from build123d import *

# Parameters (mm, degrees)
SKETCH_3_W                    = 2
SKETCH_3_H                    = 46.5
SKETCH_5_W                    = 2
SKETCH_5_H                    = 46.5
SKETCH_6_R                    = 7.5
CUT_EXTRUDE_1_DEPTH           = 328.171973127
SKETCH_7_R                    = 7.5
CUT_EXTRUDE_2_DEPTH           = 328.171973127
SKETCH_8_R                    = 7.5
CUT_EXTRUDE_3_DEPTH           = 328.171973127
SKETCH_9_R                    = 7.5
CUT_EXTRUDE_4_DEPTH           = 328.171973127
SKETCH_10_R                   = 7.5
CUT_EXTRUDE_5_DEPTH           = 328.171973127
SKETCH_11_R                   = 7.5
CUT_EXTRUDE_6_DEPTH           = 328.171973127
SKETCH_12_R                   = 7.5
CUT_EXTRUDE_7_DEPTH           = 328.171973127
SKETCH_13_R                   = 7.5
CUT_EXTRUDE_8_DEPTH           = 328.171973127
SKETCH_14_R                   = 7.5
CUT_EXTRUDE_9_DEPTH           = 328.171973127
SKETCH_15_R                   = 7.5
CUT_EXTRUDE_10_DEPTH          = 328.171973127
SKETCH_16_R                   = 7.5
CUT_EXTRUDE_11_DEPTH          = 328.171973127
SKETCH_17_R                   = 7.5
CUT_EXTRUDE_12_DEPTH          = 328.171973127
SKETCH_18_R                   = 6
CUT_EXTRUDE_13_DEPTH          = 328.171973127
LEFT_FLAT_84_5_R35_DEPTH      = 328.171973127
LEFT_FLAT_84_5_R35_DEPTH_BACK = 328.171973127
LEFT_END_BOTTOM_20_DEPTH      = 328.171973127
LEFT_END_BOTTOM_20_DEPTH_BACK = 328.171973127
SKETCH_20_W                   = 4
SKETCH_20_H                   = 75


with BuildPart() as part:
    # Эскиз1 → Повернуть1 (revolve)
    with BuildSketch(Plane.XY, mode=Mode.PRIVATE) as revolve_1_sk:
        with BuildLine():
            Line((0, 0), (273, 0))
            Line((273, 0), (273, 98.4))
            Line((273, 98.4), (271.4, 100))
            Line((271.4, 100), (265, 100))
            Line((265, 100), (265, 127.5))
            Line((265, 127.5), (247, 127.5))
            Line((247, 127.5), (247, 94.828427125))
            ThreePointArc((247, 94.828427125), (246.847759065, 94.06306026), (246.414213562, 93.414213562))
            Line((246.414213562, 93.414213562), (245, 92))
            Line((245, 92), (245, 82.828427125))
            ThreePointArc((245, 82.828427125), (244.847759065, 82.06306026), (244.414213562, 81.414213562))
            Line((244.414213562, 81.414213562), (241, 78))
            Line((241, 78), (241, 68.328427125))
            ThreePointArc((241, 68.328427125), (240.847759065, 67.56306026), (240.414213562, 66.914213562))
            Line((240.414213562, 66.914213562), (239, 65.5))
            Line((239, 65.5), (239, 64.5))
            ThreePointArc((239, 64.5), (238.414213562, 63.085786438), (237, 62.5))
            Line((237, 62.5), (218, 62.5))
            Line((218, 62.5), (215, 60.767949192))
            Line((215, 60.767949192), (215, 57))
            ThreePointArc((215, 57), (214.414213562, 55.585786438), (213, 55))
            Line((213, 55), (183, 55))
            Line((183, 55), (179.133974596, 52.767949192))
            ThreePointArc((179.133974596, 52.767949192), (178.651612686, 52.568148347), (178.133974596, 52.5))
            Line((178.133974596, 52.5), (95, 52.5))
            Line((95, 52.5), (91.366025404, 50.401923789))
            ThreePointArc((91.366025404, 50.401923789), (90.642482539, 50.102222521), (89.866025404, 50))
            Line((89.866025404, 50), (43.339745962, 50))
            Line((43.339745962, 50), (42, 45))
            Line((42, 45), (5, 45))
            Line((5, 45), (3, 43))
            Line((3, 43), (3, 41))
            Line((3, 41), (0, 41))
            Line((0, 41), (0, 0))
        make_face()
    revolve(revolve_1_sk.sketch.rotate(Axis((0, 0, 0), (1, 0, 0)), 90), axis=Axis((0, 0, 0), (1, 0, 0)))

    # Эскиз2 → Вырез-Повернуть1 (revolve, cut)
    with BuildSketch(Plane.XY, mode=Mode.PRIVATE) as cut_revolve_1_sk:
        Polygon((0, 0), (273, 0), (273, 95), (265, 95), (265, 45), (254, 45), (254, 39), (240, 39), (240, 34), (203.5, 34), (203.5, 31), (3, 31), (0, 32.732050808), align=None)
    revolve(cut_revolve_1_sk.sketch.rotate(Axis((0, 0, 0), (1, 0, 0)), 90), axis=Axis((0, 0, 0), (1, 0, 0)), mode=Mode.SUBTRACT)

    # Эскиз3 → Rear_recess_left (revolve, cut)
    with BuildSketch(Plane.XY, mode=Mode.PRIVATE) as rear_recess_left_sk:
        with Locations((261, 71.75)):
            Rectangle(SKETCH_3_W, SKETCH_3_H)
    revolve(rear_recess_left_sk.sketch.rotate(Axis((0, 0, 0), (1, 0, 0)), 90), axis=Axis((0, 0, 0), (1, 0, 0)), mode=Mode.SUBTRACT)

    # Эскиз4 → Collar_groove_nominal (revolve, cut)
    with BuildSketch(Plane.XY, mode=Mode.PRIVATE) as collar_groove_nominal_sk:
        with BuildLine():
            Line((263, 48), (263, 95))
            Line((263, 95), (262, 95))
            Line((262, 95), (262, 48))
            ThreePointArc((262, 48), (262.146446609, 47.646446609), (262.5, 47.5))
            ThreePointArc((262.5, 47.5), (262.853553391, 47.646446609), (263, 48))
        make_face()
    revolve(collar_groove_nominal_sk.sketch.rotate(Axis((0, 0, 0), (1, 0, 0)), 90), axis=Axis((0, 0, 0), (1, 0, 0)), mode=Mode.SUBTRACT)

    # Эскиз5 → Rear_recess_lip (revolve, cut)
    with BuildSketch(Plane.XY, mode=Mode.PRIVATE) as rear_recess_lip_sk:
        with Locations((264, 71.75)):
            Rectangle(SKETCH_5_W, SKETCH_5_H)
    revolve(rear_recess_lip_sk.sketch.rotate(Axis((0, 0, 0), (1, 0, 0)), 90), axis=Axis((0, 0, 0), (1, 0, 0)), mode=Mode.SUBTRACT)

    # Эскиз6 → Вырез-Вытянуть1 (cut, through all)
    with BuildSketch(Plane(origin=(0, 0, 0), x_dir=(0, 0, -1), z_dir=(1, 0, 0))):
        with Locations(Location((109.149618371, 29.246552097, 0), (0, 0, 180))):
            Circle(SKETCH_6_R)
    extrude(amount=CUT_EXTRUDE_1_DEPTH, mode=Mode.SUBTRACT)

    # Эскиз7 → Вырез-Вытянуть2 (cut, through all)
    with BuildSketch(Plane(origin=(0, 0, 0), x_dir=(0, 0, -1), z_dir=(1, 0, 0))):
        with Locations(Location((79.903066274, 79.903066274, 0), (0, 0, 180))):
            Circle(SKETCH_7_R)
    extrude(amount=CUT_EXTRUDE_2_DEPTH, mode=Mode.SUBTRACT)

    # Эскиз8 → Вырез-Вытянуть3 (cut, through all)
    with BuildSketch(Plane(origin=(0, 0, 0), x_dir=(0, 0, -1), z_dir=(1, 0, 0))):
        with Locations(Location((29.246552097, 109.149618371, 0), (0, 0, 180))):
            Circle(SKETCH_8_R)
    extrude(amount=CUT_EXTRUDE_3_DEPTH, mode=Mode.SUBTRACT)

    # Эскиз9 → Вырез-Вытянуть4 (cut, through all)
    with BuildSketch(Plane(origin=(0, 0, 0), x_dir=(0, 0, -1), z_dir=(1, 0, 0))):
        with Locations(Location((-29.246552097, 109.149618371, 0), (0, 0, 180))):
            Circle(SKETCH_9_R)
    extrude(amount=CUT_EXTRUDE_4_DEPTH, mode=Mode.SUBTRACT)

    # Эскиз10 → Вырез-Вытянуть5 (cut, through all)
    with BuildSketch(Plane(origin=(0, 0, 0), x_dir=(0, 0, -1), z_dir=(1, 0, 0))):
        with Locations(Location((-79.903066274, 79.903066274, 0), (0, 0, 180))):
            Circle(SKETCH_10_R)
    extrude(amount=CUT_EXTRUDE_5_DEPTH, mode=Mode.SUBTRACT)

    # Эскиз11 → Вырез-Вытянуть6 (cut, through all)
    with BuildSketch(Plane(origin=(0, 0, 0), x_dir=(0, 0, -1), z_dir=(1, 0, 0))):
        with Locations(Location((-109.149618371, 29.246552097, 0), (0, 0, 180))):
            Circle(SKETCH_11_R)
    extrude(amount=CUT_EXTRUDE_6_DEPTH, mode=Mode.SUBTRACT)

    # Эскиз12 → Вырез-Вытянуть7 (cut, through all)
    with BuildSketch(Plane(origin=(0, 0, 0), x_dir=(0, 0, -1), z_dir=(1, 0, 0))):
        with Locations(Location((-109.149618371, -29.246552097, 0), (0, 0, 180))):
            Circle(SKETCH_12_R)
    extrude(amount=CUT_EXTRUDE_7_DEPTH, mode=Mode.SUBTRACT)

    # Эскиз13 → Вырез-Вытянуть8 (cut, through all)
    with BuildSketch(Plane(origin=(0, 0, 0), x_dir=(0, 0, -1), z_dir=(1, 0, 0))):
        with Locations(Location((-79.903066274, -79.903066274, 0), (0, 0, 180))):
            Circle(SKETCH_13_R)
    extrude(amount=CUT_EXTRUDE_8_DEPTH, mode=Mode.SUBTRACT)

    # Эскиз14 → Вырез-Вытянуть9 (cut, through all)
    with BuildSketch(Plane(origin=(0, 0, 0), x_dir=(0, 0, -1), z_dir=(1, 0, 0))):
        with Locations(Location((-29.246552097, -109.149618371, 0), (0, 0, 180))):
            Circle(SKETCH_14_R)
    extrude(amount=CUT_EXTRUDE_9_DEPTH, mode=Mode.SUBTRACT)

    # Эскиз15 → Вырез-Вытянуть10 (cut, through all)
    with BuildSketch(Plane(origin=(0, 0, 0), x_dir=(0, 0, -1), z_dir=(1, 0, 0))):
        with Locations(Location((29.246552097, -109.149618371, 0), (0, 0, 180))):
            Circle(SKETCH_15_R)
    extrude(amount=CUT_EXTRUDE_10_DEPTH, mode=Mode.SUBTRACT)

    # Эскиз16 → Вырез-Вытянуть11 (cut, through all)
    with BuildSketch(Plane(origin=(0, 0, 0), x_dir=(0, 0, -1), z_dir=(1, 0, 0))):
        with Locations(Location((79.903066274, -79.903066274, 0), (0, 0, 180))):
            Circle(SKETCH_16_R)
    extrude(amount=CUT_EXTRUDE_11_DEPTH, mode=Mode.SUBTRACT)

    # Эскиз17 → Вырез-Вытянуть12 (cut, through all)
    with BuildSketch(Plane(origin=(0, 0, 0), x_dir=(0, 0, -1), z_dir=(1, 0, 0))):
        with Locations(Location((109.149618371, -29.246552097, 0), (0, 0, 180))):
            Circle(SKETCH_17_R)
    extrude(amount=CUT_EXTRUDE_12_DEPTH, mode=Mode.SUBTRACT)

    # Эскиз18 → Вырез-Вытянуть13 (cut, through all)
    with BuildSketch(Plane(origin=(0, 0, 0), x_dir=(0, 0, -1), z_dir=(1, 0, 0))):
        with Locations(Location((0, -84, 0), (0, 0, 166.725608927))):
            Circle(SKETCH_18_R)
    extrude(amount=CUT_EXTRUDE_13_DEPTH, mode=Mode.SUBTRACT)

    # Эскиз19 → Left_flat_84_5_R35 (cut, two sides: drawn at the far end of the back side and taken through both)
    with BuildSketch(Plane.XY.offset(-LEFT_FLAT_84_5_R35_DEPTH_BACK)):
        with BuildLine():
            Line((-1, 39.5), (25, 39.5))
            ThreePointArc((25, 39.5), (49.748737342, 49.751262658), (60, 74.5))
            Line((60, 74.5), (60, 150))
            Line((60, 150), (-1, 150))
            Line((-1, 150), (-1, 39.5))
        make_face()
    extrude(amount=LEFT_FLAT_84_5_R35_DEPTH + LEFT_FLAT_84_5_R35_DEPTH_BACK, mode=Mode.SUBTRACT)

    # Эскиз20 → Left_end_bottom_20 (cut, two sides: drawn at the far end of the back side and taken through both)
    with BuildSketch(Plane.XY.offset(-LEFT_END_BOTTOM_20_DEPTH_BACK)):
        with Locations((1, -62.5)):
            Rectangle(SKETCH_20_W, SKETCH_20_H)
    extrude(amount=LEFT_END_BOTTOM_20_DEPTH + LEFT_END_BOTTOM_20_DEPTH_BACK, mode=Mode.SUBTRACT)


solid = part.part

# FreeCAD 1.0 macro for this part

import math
import FreeCAD as App
import Part
import Sketcher

V = App.Vector
Q = App.Units.Quantity


def add_polygon(sketch, points):
    """Adds a closed chain of lines whose ends are joined by coincident constraints."""
    first, n = sketch.GeometryCount, len(points)
    for a, b in zip(points, points[1:] + points[:1]):
        sketch.addGeometry(Part.LineSegment(App.Vector(*a, 0), App.Vector(*b, 0)), False)
    for i in range(n):
        sketch.addConstraint(Sketcher.Constraint("Coincident", first + i, 2, first + (i + 1) % n, 1))

doc = App.newDocument("Part")
body = doc.addObject("PartDesign::Body", "Body")

# Sketch on XY plane
sketch1 = body.newObject("Sketcher::SketchObject", "Sketch")
sketch1.AttachmentSupport = (doc.getObject("XY_Plane"), [""])
sketch1.MapMode = "FlatFace"
sketch1.addGeometry([
    Part.LineSegment(V(0, 0, 0), V(273, 0, 0)),  # 0
    Part.LineSegment(V(273, 0, 0), V(273, 98.4, 0)),  # 1
    Part.LineSegment(V(273, 98.4, 0), V(271.4, 100, 0)),  # 2
    Part.LineSegment(V(271.4, 100, 0), V(265, 100, 0)),  # 3
    Part.LineSegment(V(265, 100, 0), V(265, 127.5, 0)),  # 4
    Part.LineSegment(V(265, 127.5, 0), V(247, 127.5, 0)),  # 5
    Part.LineSegment(V(247, 127.5, 0), V(247, 94.8, 0)),  # 6
    Part.ArcOfCircle(Part.Circle(V(245, 94.8, 0), V(0, 0, 1), 2), math.radians(-45), math.radians(0)),  # 7
    Part.LineSegment(V(246.4, 93.4, 0), V(245, 92, 0)),  # 8
    Part.LineSegment(V(245, 92, 0), V(245, 82.8, 0)),  # 9
    Part.ArcOfCircle(Part.Circle(V(243, 82.8, 0), V(0, 0, 1), 2), math.radians(-45), math.radians(0)),  # 10
    Part.LineSegment(V(244.4, 81.4, 0), V(241, 78, 0)),  # 11
    Part.LineSegment(V(241, 78, 0), V(241, 68.3, 0)),  # 12
    Part.ArcOfCircle(Part.Circle(V(239, 68.3, 0), V(0, 0, 1), 2), math.radians(-45), math.radians(0)),  # 13
    Part.LineSegment(V(240.4, 66.9, 0), V(239, 65.5, 0)),  # 14
    Part.LineSegment(V(239, 65.5, 0), V(239, 64.5, 0)),  # 15
    Part.ArcOfCircle(Part.Circle(V(237, 64.5, 0), V(0, 0, 1), 2), math.radians(-90), math.radians(0)),  # 16
    Part.LineSegment(V(237, 62.5, 0), V(218, 62.5, 0)),  # 17
    Part.LineSegment(V(218, 62.5, 0), V(215, 60.8, 0)),  # 18
    Part.LineSegment(V(215, 60.8, 0), V(215, 57, 0)),  # 19
    Part.ArcOfCircle(Part.Circle(V(213, 57, 0), V(0, 0, 1), 2), math.radians(-90), math.radians(0)),  # 20
    Part.LineSegment(V(213, 55, 0), V(183, 55, 0)),  # 21
    Part.LineSegment(V(183, 55, 0), V(179.1, 52.8, 0)),  # 22
    Part.ArcOfCircle(Part.Circle(V(178.1, 54.5, 0), V(0, 0, 1), 2), math.radians(-90), math.radians(-60)),  # 23
    Part.LineSegment(V(178.1, 52.5, 0), V(95, 52.5, 0)),  # 24
    Part.LineSegment(V(95, 52.5, 0), V(91.4, 50.4, 0)),  # 25
    Part.ArcOfCircle(Part.Circle(V(89.9, 53, 0), V(0, 0, 1), 3), math.radians(-90), math.radians(-60)),  # 26
    Part.LineSegment(V(89.9, 50, 0), V(43.3, 50, 0)),  # 27
    Part.LineSegment(V(43.3, 50, 0), V(42, 45, 0)),  # 28
    Part.LineSegment(V(42, 45, 0), V(5, 45, 0)),  # 29
    Part.LineSegment(V(5, 45, 0), V(3, 43, 0)),  # 30
    Part.LineSegment(V(3, 43, 0), V(3, 41, 0)),  # 31
    Part.LineSegment(V(3, 41, 0), V(0, 41, 0)),  # 32
    Part.LineSegment(V(0, 41, 0), V(0, 0, 0)),  # 33
], False)
sketch1.addConstraint([
    Sketcher.Constraint("Coincident", 0, 2, 1, 1),
    Sketcher.Constraint("Coincident", 1, 2, 2, 1),
    Sketcher.Constraint("Coincident", 2, 2, 3, 1),
    Sketcher.Constraint("Coincident", 3, 2, 4, 1),
    Sketcher.Constraint("Coincident", 4, 2, 5, 1),
    Sketcher.Constraint("Coincident", 5, 2, 6, 1),
    Sketcher.Constraint("Tangent", 6, 2, 7, 2),
    Sketcher.Constraint("Tangent", 7, 1, 8, 1),
    Sketcher.Constraint("Coincident", 8, 2, 9, 1),
    Sketcher.Constraint("Tangent", 9, 2, 10, 2),
    Sketcher.Constraint("Tangent", 10, 1, 11, 1),
    Sketcher.Constraint("Coincident", 11, 2, 12, 1),
    Sketcher.Constraint("Tangent", 12, 2, 13, 2),
    Sketcher.Constraint("Tangent", 13, 1, 14, 1),
    Sketcher.Constraint("Coincident", 14, 2, 15, 1),
    Sketcher.Constraint("Tangent", 15, 2, 16, 2),
    Sketcher.Constraint("Tangent", 16, 1, 17, 1),
    Sketcher.Constraint("Coincident", 17, 2, 18, 1),
    Sketcher.Constraint("Coincident", 18, 2, 19, 1),
    Sketcher.Constraint("Tangent", 19, 2, 20, 2),
    Sketcher.Constraint("Tangent", 20, 1, 21, 1),
    Sketcher.Constraint("Coincident", 21, 2, 22, 1),
    Sketcher.Constraint("Tangent", 22, 2, 23, 2),
    Sketcher.Constraint("Tangent", 23, 1, 24, 1),
    Sketcher.Constraint("Coincident", 24, 2, 25, 1),
    Sketcher.Constraint("Tangent", 25, 2, 26, 2),
    Sketcher.Constraint("Tangent", 26, 1, 27, 1),
    Sketcher.Constraint("Coincident", 27, 2, 28, 1),
    Sketcher.Constraint("Coincident", 28, 2, 29, 1),
    Sketcher.Constraint("Coincident", 29, 2, 30, 1),
    Sketcher.Constraint("Coincident", 30, 2, 31, 1),
    Sketcher.Constraint("Coincident", 31, 2, 32, 1),
    Sketcher.Constraint("Coincident", 32, 2, 33, 1),
    Sketcher.Constraint("Coincident", 33, 2, 0, 1),
    Sketcher.Constraint("Horizontal", 0),
    Sketcher.Constraint("Vertical", 1),
    Sketcher.Constraint("Horizontal", 3),
    Sketcher.Constraint("Vertical", 4),
    Sketcher.Constraint("Horizontal", 5),
    Sketcher.Constraint("Vertical", 6),
    Sketcher.Constraint("Vertical", 9),
    Sketcher.Constraint("Vertical", 12),
    Sketcher.Constraint("Vertical", 15),
    Sketcher.Constraint("Horizontal", 17),
    Sketcher.Constraint("Vertical", 19),
    Sketcher.Constraint("Horizontal", 21),
    Sketcher.Constraint("Horizontal", 24),
    Sketcher.Constraint("Horizontal", 27),
    Sketcher.Constraint("Horizontal", 29),
    Sketcher.Constraint("Vertical", 31),
    Sketcher.Constraint("Horizontal", 32),
    Sketcher.Constraint("Vertical", 33),
    Sketcher.Constraint("Coincident", 33, 2, -1, 1),
    Sketcher.Constraint("Equal", 7, 10),
    Sketcher.Constraint("Equal", 10, 13),
    Sketcher.Constraint("Equal", 13, 16),
    Sketcher.Constraint("Equal", 16, 20),
    Sketcher.Constraint("Equal", 20, 23),
    Sketcher.Constraint("Perpendicular", 2, 8),
    Sketcher.Constraint("Parallel", 8, 11),
    Sketcher.Constraint("Parallel", 11, 14),
    Sketcher.Constraint("Parallel", 18, 22),
    Sketcher.Constraint("Parallel", 22, 25),
    Sketcher.Constraint("Parallel", 14, 30),
    Sketcher.Constraint("Vertical", 7, 3, 8, 2),
    Sketcher.Constraint("Vertical", 13, 3, 14, 2),
    Sketcher.Constraint("Radius", 7, Q("2 mm")),
    Sketcher.Constraint("Radius", 26, Q("3 mm")),
    Sketcher.Constraint("DistanceX", 0, 1, 0, 2, Q("273 mm")),
    Sketcher.Constraint("DistanceX", 5, 2, 5, 1, Q("18 mm")),
    Sketcher.Constraint("DistanceX", 17, 2, 17, 1, Q("19 mm")),
    Sketcher.Constraint("DistanceX", 21, 2, 21, 1, Q("30 mm")),
    Sketcher.Constraint("DistanceX", 29, 2, 29, 1, Q("37 mm")),
    Sketcher.Constraint("DistanceX", 32, 2, 32, 1, Q("3 mm")),
    Sketcher.Constraint("DistanceY", 15, 2, 15, 1, Q("1 mm")),
    Sketcher.Constraint("DistanceY", 31, 2, 31, 1, Q("2 mm")),
    Sketcher.Constraint("DistanceY", 33, 2, 33, 1, Q("41 mm")),
    Sketcher.Constraint("Angle", 2, Q("135 deg")),
    Sketcher.Constraint("Angle", 18, Q("-150 deg")),
    Sketcher.Constraint("Angle", 28, Q("-105 deg")),
    Sketcher.Constraint("DistanceX", 3, 2, 3, 1, Q("6.4 mm")),
    Sketcher.Constraint("DistanceY", 1, 1, 1, 2, Q("98.4 mm")),
    Sketcher.Constraint("DistanceY", 4, 1, 4, 2, Q("27.5 mm")),
    Sketcher.Constraint("DistanceX", -1, 1, 7, 3, Q("245 mm")),
    Sketcher.Constraint("DistanceX", -1, 1, 13, 3, Q("239 mm")),
    Sketcher.Constraint("DistanceX", -1, 1, 20, 3, Q("213 mm")),
    Sketcher.Constraint("DistanceY", -1, 1, 20, 3, Q("57 mm")),
    Sketcher.Constraint("DistanceY", -1, 1, 26, 3, Q("53 mm")),
    Sketcher.Constraint("DistanceY", -1, 1, 8, 2, Q("92 mm")),
    Sketcher.Constraint("DistanceY", -1, 1, 11, 2, Q("78 mm")),
    Sketcher.Constraint("DistanceX", -1, 1, 24, 2, Q("95 mm")),
    Sketcher.Constraint("DistanceX", -1, 1, 28, 2, Q("42 mm")),
    Sketcher.Constraint("DistanceY", 23, 3, 16, 3, Q("10 mm")),
    Sketcher.Constraint("DistanceY", -1, 1, 16, 3, Q("64.5 mm")),
])
revolution = body.newObject("PartDesign::Revolution", "Revolution")
revolution.Profile = sketch1
revolution.ReferenceAxis = (sketch1, ["H_Axis"])
revolution.Angle = 360

# Sketch on XY plane
sketch2 = body.newObject("Sketcher::SketchObject", "Sketch001")
sketch2.AttachmentSupport = (doc.getObject("XY_Plane"), [""])
sketch2.MapMode = "FlatFace"
add_polygon(sketch2, [(0, 0), (273, 0), (273, 95), (265, 95), (265, 45), (254, 45), (254, 39), (240, 39), (240, 34), (203.5, 34), (203.5, 31), (3, 31), (0, 32.7)])  # lines 0-12
sketch2.addConstraint([
    Sketcher.Constraint("Horizontal", 0),
    Sketcher.Constraint("Vertical", 1),
    Sketcher.Constraint("Horizontal", 2),
    Sketcher.Constraint("Vertical", 3),
    Sketcher.Constraint("Horizontal", 4),
    Sketcher.Constraint("Vertical", 5),
    Sketcher.Constraint("Horizontal", 6),
    Sketcher.Constraint("Vertical", 7),
    Sketcher.Constraint("Horizontal", 8),
    Sketcher.Constraint("Vertical", 9),
    Sketcher.Constraint("Horizontal", 10),
    Sketcher.Constraint("Vertical", 12),
    Sketcher.Constraint("Coincident", 12, 2, -1, 1),
    Sketcher.Constraint("DistanceX", 0, 1, 0, 2, Q("273 mm")),
    Sketcher.Constraint("DistanceX", 2, 2, 2, 1, Q("8 mm")),
    Sketcher.Constraint("DistanceX", 4, 2, 4, 1, Q("11 mm")),
    Sketcher.Constraint("DistanceX", 6, 2, 6, 1, Q("14 mm")),
    Sketcher.Constraint("DistanceY", 1, 1, 1, 2, Q("95 mm")),
    Sketcher.Constraint("DistanceY", 3, 2, 3, 1, Q("50 mm")),
    Sketcher.Constraint("DistanceY", 5, 2, 5, 1, Q("6 mm")),
    Sketcher.Constraint("DistanceY", 7, 2, 7, 1, Q("5 mm")),
    Sketcher.Constraint("DistanceY", 9, 2, 9, 1, Q("3 mm")),
    Sketcher.Constraint("Angle", 11, Q("150 deg")),
    Sketcher.Constraint("DistanceX", 8, 2, 8, 1, Q("36.5 mm")),
    Sketcher.Constraint("DistanceX", 10, 2, 10, 1, Q("200.5 mm")),
])
groove = body.newObject("PartDesign::Groove", "Groove")
groove.Profile = sketch2
groove.ReferenceAxis = (sketch2, ["H_Axis"])
groove.Angle = 360

# Sketch on XY plane
sketch3 = body.newObject("Sketcher::SketchObject", "Sketch002")
sketch3.AttachmentSupport = (doc.getObject("XY_Plane"), [""])
sketch3.MapMode = "FlatFace"
add_polygon(sketch3, [(260, 95), (260, 48.5), (262, 48.5), (262, 95)])  # lines 0-3
sketch3.addConstraint([
    Sketcher.Constraint("Vertical", 0),
    Sketcher.Constraint("Horizontal", 1),
    Sketcher.Constraint("Vertical", 2),
    Sketcher.Constraint("Horizontal", 3),
    Sketcher.Constraint("DistanceX", 1, 1, 1, 2, Q("2 mm")),
    Sketcher.Constraint("DistanceY", 0, 2, 0, 1, Q("46.5 mm")),
    Sketcher.Constraint("DistanceX", -1, 1, 0, 2, Q("260 mm")),
    Sketcher.Constraint("DistanceY", -1, 1, 2, 2, Q("95 mm")),
])
groove2 = body.newObject("PartDesign::Groove", "Groove001")
groove2.Profile = sketch3
groove2.ReferenceAxis = (sketch3, ["H_Axis"])
groove2.Angle = 360

# Sketch on XY plane
sketch4 = body.newObject("Sketcher::SketchObject", "Sketch003")
sketch4.AttachmentSupport = (doc.getObject("XY_Plane"), [""])
sketch4.MapMode = "FlatFace"
sketch4.addGeometry([
    Part.LineSegment(V(263, 48, 0), V(263, 95, 0)),  # 0
    Part.LineSegment(V(263, 95, 0), V(262, 95, 0)),  # 1
    Part.LineSegment(V(262, 95, 0), V(262, 48, 0)),  # 2
    Part.ArcOfCircle(Part.Circle(V(262.5, 48, 0), V(0, 0, 1), 0.5), math.radians(180), math.radians(270)),  # 3
    Part.ArcOfCircle(Part.Circle(V(262.5, 48, 0), V(0, 0, 1), 0.5), math.radians(-90), math.radians(0)),  # 4
], False)
sketch4.addConstraint([
    Sketcher.Constraint("Coincident", 0, 2, 1, 1),
    Sketcher.Constraint("Coincident", 1, 2, 2, 1),
    Sketcher.Constraint("Tangent", 2, 2, 3, 1),
    Sketcher.Constraint("Tangent", 3, 2, 4, 1),
    Sketcher.Constraint("Tangent", 4, 2, 0, 1),
    Sketcher.Constraint("Vertical", 0),
    Sketcher.Constraint("Horizontal", 1),
    Sketcher.Constraint("Vertical", 2),
    Sketcher.Constraint("Equal", 3, 4),
    Sketcher.Constraint("Vertical", 4, 3, 3, 2),
    Sketcher.Constraint("Radius", 3, Q("0.5 mm")),
    Sketcher.Constraint("DistanceY", 0, 1, 0, 2, Q("47 mm")),
    Sketcher.Constraint("DistanceY", -1, 1, 3, 3, Q("48 mm")),
    Sketcher.Constraint("DistanceX", -1, 1, 0, 2, Q("263 mm")),
])
groove3 = body.newObject("PartDesign::Groove", "Groove002")
groove3.Profile = sketch4
groove3.ReferenceAxis = (sketch4, ["H_Axis"])
groove3.Angle = 360

# Sketch on XY plane
sketch5 = body.newObject("Sketcher::SketchObject", "Sketch004")
sketch5.AttachmentSupport = (doc.getObject("XY_Plane"), [""])
sketch5.MapMode = "FlatFace"
add_polygon(sketch5, [(263, 95), (263, 48.5), (265, 48.5), (265, 95)])  # lines 0-3
sketch5.addConstraint([
    Sketcher.Constraint("Vertical", 0),
    Sketcher.Constraint("Horizontal", 1),
    Sketcher.Constraint("Vertical", 2),
    Sketcher.Constraint("Horizontal", 3),
    Sketcher.Constraint("DistanceX", 1, 1, 1, 2, Q("2 mm")),
    Sketcher.Constraint("DistanceY", 0, 2, 0, 1, Q("46.5 mm")),
    Sketcher.Constraint("DistanceX", -1, 1, 0, 2, Q("263 mm")),
    Sketcher.Constraint("DistanceY", -1, 1, 2, 2, Q("95 mm")),
])
groove4 = body.newObject("PartDesign::Groove", "Groove003")
groove4.Profile = sketch5
groove4.ReferenceAxis = (sketch5, ["H_Axis"])
groove4.Angle = 360

# Sketch on YZ plane
sketch6 = body.newObject("Sketcher::SketchObject", "Sketch005")
sketch6.AttachmentSupport = (doc.getObject("YZ_Plane"), [""])
sketch6.MapMode = "FlatFace"
sketch6.addGeometry(Part.Circle(V(29, -109, 0), V(0, 0, 1), 8), False)
sketch6.addConstraint([
    Sketcher.Constraint("Diameter", 0, Q("15 mm")),
    Sketcher.Constraint("DistanceY", 0, 3, -1, 1, Q("109.149618 mm")),
    Sketcher.Constraint("DistanceX", -1, 1, 0, 3, Q("29.246552 mm")),
])
pocket1 = body.newObject("PartDesign::Pocket", "Pocket")
pocket1.Profile = sketch6
pocket1.Type = "ThroughAll"
pocket1.Reversed = True

# Sketch on YZ plane
sketch7 = body.newObject("Sketcher::SketchObject", "Sketch006")
sketch7.AttachmentSupport = (doc.getObject("YZ_Plane"), [""])
sketch7.MapMode = "FlatFace"
sketch7.addGeometry(Part.Circle(V(80, -80, 0), V(0, 0, 1), 8), False)
sketch7.addConstraint([
    Sketcher.Constraint("Diameter", 0, Q("15 mm")),
    Sketcher.Constraint("DistanceX", -1, 1, 0, 3, Q("79.903066 mm")),
    Sketcher.Constraint("DistanceY", 0, 3, -1, 1, Q("79.903066 mm")),
])
pocket2 = body.newObject("PartDesign::Pocket", "Pocket001")
pocket2.Profile = sketch7
pocket2.Type = "ThroughAll"
pocket2.Reversed = True

# Sketch on YZ plane
sketch8 = body.newObject("Sketcher::SketchObject", "Sketch007")
sketch8.AttachmentSupport = (doc.getObject("YZ_Plane"), [""])
sketch8.MapMode = "FlatFace"
sketch8.addGeometry(Part.Circle(V(109, -29, 0), V(0, 0, 1), 8), False)
sketch8.addConstraint([
    Sketcher.Constraint("Diameter", 0, Q("15 mm")),
    Sketcher.Constraint("DistanceX", -1, 1, 0, 3, Q("109.149618 mm")),
    Sketcher.Constraint("DistanceY", 0, 3, -1, 1, Q("29.246552 mm")),
])
pocket3 = body.newObject("PartDesign::Pocket", "Pocket002")
pocket3.Profile = sketch8
pocket3.Type = "ThroughAll"
pocket3.Reversed = True

# Sketch on YZ plane
sketch9 = body.newObject("Sketcher::SketchObject", "Sketch008")
sketch9.AttachmentSupport = (doc.getObject("YZ_Plane"), [""])
sketch9.MapMode = "FlatFace"
sketch9.addGeometry(Part.Circle(V(109, 29, 0), V(0, 0, 1), 8), False)
sketch9.addConstraint([
    Sketcher.Constraint("Diameter", 0, Q("15 mm")),
    Sketcher.Constraint("DistanceX", -1, 1, 0, 3, Q("109.149618 mm")),
    Sketcher.Constraint("DistanceY", -1, 1, 0, 3, Q("29.246552 mm")),
])
pocket4 = body.newObject("PartDesign::Pocket", "Pocket003")
pocket4.Profile = sketch9
pocket4.Type = "ThroughAll"
pocket4.Reversed = True

# Sketch on YZ plane
sketch10 = body.newObject("Sketcher::SketchObject", "Sketch009")
sketch10.AttachmentSupport = (doc.getObject("YZ_Plane"), [""])
sketch10.MapMode = "FlatFace"
sketch10.addGeometry(Part.Circle(V(80, 80, 0), V(0, 0, 1), 8), False)
sketch10.addConstraint([
    Sketcher.Constraint("Diameter", 0, Q("15 mm")),
    Sketcher.Constraint("DistanceX", -1, 1, 0, 3, Q("79.903066 mm")),
    Sketcher.Constraint("DistanceY", -1, 1, 0, 3, Q("79.903066 mm")),
])
pocket5 = body.newObject("PartDesign::Pocket", "Pocket004")
pocket5.Profile = sketch10
pocket5.Type = "ThroughAll"
pocket5.Reversed = True

# Sketch on YZ plane
sketch11 = body.newObject("Sketcher::SketchObject", "Sketch010")
sketch11.AttachmentSupport = (doc.getObject("YZ_Plane"), [""])
sketch11.MapMode = "FlatFace"
sketch11.addGeometry(Part.Circle(V(29, 109, 0), V(0, 0, 1), 8), False)
sketch11.addConstraint([
    Sketcher.Constraint("Diameter", 0, Q("15 mm")),
    Sketcher.Constraint("DistanceY", -1, 1, 0, 3, Q("109.149618 mm")),
    Sketcher.Constraint("DistanceX", -1, 1, 0, 3, Q("29.246552 mm")),
])
pocket6 = body.newObject("PartDesign::Pocket", "Pocket005")
pocket6.Profile = sketch11
pocket6.Type = "ThroughAll"
pocket6.Reversed = True

# Sketch on YZ plane
sketch12 = body.newObject("Sketcher::SketchObject", "Sketch011")
sketch12.AttachmentSupport = (doc.getObject("YZ_Plane"), [""])
sketch12.MapMode = "FlatFace"
sketch12.addGeometry(Part.Circle(V(-29, 109, 0), V(0, 0, 1), 8), False)
sketch12.addConstraint([
    Sketcher.Constraint("Diameter", 0, Q("15 mm")),
    Sketcher.Constraint("DistanceY", -1, 1, 0, 3, Q("109.149618 mm")),
    Sketcher.Constraint("DistanceX", 0, 3, -1, 1, Q("29.246552 mm")),
])
pocket7 = body.newObject("PartDesign::Pocket", "Pocket006")
pocket7.Profile = sketch12
pocket7.Type = "ThroughAll"
pocket7.Reversed = True

# Sketch on YZ plane
sketch13 = body.newObject("Sketcher::SketchObject", "Sketch012")
sketch13.AttachmentSupport = (doc.getObject("YZ_Plane"), [""])
sketch13.MapMode = "FlatFace"
sketch13.addGeometry(Part.Circle(V(-80, 80, 0), V(0, 0, 1), 8), False)
sketch13.addConstraint([
    Sketcher.Constraint("Diameter", 0, Q("15 mm")),
    Sketcher.Constraint("DistanceX", 0, 3, -1, 1, Q("79.903066 mm")),
    Sketcher.Constraint("DistanceY", -1, 1, 0, 3, Q("79.903066 mm")),
])
pocket8 = body.newObject("PartDesign::Pocket", "Pocket007")
pocket8.Profile = sketch13
pocket8.Type = "ThroughAll"
pocket8.Reversed = True

# Sketch on YZ plane
sketch14 = body.newObject("Sketcher::SketchObject", "Sketch013")
sketch14.AttachmentSupport = (doc.getObject("YZ_Plane"), [""])
sketch14.MapMode = "FlatFace"
sketch14.addGeometry(Part.Circle(V(-109, 29, 0), V(0, 0, 1), 8), False)
sketch14.addConstraint([
    Sketcher.Constraint("Diameter", 0, Q("15 mm")),
    Sketcher.Constraint("DistanceX", 0, 3, -1, 1, Q("109.149618 mm")),
    Sketcher.Constraint("DistanceY", -1, 1, 0, 3, Q("29.246552 mm")),
])
pocket9 = body.newObject("PartDesign::Pocket", "Pocket008")
pocket9.Profile = sketch14
pocket9.Type = "ThroughAll"
pocket9.Reversed = True

# Sketch on YZ plane
sketch15 = body.newObject("Sketcher::SketchObject", "Sketch014")
sketch15.AttachmentSupport = (doc.getObject("YZ_Plane"), [""])
sketch15.MapMode = "FlatFace"
sketch15.addGeometry(Part.Circle(V(-109, -29, 0), V(0, 0, 1), 8), False)
sketch15.addConstraint([
    Sketcher.Constraint("Diameter", 0, Q("15 mm")),
    Sketcher.Constraint("DistanceX", 0, 3, -1, 1, Q("109.149618 mm")),
    Sketcher.Constraint("DistanceY", 0, 3, -1, 1, Q("29.246552 mm")),
])
pocket10 = body.newObject("PartDesign::Pocket", "Pocket009")
pocket10.Profile = sketch15
pocket10.Type = "ThroughAll"
pocket10.Reversed = True

# Sketch on YZ plane
sketch16 = body.newObject("Sketcher::SketchObject", "Sketch015")
sketch16.AttachmentSupport = (doc.getObject("YZ_Plane"), [""])
sketch16.MapMode = "FlatFace"
sketch16.addGeometry(Part.Circle(V(-80, -80, 0), V(0, 0, 1), 8), False)
sketch16.addConstraint([
    Sketcher.Constraint("Diameter", 0, Q("15 mm")),
    Sketcher.Constraint("DistanceX", 0, 3, -1, 1, Q("79.903066 mm")),
    Sketcher.Constraint("DistanceY", 0, 3, -1, 1, Q("79.903066 mm")),
])
pocket11 = body.newObject("PartDesign::Pocket", "Pocket010")
pocket11.Profile = sketch16
pocket11.Type = "ThroughAll"
pocket11.Reversed = True

# Sketch on YZ plane
sketch17 = body.newObject("Sketcher::SketchObject", "Sketch016")
sketch17.AttachmentSupport = (doc.getObject("YZ_Plane"), [""])
sketch17.MapMode = "FlatFace"
sketch17.addGeometry(Part.Circle(V(-29, -109, 0), V(0, 0, 1), 8), False)
sketch17.addConstraint([
    Sketcher.Constraint("Diameter", 0, Q("15 mm")),
    Sketcher.Constraint("DistanceY", 0, 3, -1, 1, Q("109.149618 mm")),
    Sketcher.Constraint("DistanceX", 0, 3, -1, 1, Q("29.246552 mm")),
])
pocket12 = body.newObject("PartDesign::Pocket", "Pocket011")
pocket12.Profile = sketch17
pocket12.Type = "ThroughAll"
pocket12.Reversed = True

# Sketch on YZ plane
sketch18 = body.newObject("Sketcher::SketchObject", "Sketch017")
sketch18.AttachmentSupport = (doc.getObject("YZ_Plane"), [""])
sketch18.MapMode = "FlatFace"
sketch18.addGeometry(Part.Circle(V(-84, 0, 0), V(0, 0, 1), 6), False)
sketch18.addConstraint([
    Sketcher.Constraint("PointOnObject", 0, 3, -1),
    Sketcher.Constraint("Diameter", 0, Q("12 mm")),
    Sketcher.Constraint("DistanceX", 0, 3, -1, 1, Q("84 mm")),
])
pocket13 = body.newObject("PartDesign::Pocket", "Pocket012")
pocket13.Profile = sketch18
pocket13.Type = "ThroughAll"
pocket13.Reversed = True

# Sketch on XY plane
sketch19 = body.newObject("Sketcher::SketchObject", "Sketch018")
sketch19.AttachmentSupport = (doc.getObject("XY_Plane"), [""])
sketch19.MapMode = "FlatFace"
sketch19.addGeometry([
    Part.LineSegment(V(-1, 40, 0), V(25, 40, 0)),  # 0
    Part.ArcOfCircle(Part.Circle(V(25, 74, 0), V(0, 0, 1), 35), math.radians(-90), math.radians(0)),  # 1
    Part.LineSegment(V(60, 74, 0), V(60, 150, 0)),  # 2
    Part.LineSegment(V(60, 150, 0), V(-1, 150, 0)),  # 3
    Part.LineSegment(V(-1, 150, 0), V(-1, 40, 0)),  # 4
], False)
sketch19.addConstraint([
    Sketcher.Constraint("Tangent", 0, 2, 1, 1),
    Sketcher.Constraint("Tangent", 1, 2, 2, 1),
    Sketcher.Constraint("Coincident", 2, 2, 3, 1),
    Sketcher.Constraint("Coincident", 3, 2, 4, 1),
    Sketcher.Constraint("Coincident", 4, 2, 0, 1),
    Sketcher.Constraint("Horizontal", 0),
    Sketcher.Constraint("Vertical", 2),
    Sketcher.Constraint("Horizontal", 3),
    Sketcher.Constraint("Vertical", 4),
    Sketcher.Constraint("Radius", 1, Q("35 mm")),
    Sketcher.Constraint("DistanceX", 0, 1, 0, 2, Q("26 mm")),
    Sketcher.Constraint("DistanceY", 2, 1, 2, 2, Q("75.5 mm")),
    Sketcher.Constraint("DistanceX", -1, 1, 1, 3, Q("25 mm")),
    Sketcher.Constraint("DistanceY", -1, 1, 2, 2, Q("150 mm")),
])
pocket14 = body.newObject("PartDesign::Pocket", "Pocket013")
pocket14.Profile = sketch19
pocket14.Type = "ThroughAll"
pocket14.Midplane = True

# Sketch on XY plane
sketch20 = body.newObject("Sketcher::SketchObject", "Sketch019")
sketch20.AttachmentSupport = (doc.getObject("XY_Plane"), [""])
sketch20.MapMode = "FlatFace"
add_polygon(sketch20, [(-1, -25), (-1, -100), (3, -100), (3, -25)])  # lines 0-3
sketch20.addConstraint([
    Sketcher.Constraint("Vertical", 0),
    Sketcher.Constraint("Horizontal", 1),
    Sketcher.Constraint("Vertical", 2),
    Sketcher.Constraint("Horizontal", 3),
    Sketcher.Constraint("DistanceX", 1, 1, 1, 2, Q("4 mm")),
    Sketcher.Constraint("DistanceY", 0, 2, 0, 1, Q("75 mm")),
    Sketcher.Constraint("DistanceX", 0, 2, -1, 1, Q("1 mm")),
    Sketcher.Constraint("DistanceY", 0, 2, -1, 1, Q("100 mm")),
])
pocket15 = body.newObject("PartDesign::Pocket", "Pocket014")
pocket15.Profile = sketch20
pocket15.Type = "ThroughAll"
pocket15.Midplane = True

doc.recompute()
